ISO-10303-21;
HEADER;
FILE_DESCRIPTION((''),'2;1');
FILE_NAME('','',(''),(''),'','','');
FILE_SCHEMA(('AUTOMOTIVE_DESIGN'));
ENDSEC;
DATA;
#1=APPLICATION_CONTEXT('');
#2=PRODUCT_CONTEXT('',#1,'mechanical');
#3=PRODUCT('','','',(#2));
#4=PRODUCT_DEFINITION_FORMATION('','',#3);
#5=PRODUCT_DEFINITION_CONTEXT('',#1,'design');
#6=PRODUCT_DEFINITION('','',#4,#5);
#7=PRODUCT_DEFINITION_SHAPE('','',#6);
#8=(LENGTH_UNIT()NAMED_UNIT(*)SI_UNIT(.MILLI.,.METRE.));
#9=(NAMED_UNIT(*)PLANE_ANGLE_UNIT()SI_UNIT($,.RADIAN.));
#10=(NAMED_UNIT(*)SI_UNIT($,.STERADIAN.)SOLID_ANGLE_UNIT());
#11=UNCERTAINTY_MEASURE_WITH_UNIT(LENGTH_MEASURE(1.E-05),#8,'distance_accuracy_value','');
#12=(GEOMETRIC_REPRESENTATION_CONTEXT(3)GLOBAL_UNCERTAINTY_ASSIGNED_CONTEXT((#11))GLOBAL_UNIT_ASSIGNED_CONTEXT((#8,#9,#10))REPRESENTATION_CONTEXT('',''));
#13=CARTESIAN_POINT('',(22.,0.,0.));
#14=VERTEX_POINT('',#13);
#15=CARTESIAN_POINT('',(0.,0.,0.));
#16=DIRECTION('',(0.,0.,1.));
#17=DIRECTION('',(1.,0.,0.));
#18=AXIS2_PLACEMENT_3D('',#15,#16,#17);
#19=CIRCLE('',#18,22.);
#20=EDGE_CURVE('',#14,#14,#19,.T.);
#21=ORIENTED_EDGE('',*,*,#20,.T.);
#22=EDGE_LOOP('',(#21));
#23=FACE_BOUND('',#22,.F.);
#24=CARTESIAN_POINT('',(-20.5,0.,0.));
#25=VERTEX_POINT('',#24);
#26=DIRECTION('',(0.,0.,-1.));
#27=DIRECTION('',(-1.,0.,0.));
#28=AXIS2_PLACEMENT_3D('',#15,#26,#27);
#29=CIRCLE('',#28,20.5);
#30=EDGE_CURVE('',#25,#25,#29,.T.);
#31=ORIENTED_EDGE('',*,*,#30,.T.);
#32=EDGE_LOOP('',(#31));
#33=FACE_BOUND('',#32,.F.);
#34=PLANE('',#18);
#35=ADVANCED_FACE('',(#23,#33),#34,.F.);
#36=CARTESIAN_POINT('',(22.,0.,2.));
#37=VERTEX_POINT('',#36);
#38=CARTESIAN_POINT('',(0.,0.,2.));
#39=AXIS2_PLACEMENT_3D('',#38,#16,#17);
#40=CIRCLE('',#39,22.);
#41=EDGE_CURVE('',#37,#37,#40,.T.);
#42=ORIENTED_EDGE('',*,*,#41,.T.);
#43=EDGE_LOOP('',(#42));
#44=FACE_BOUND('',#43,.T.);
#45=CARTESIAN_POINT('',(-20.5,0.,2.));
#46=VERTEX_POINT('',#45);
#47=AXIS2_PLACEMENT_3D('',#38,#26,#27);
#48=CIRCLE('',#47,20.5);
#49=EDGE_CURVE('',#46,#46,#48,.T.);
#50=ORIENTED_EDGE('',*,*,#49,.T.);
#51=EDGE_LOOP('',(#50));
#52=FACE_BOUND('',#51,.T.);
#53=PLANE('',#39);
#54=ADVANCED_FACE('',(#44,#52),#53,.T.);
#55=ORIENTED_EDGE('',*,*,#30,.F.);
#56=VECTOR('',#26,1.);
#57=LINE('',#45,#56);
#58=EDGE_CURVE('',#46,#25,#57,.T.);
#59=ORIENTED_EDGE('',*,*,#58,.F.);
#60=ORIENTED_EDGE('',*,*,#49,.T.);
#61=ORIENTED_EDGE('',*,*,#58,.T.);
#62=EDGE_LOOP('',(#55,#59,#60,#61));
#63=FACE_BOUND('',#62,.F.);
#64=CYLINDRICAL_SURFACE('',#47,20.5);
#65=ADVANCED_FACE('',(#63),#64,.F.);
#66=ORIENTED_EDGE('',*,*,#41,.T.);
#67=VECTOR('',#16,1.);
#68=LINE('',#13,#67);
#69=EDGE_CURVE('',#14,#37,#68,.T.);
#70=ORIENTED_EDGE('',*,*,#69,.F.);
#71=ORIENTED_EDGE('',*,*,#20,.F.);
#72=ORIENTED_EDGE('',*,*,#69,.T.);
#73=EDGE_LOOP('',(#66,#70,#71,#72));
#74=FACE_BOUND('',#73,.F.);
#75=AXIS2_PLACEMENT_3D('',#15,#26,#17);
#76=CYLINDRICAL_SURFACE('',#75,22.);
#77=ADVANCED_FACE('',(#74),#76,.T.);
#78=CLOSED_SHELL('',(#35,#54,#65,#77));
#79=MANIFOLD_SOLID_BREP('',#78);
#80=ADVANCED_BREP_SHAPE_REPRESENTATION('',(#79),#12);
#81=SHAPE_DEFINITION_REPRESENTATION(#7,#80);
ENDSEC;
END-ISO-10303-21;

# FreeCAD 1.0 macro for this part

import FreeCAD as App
import Part
import Sketcher
from FreeCAD import Vector
Q = App.Units.Quantity

doc = App.newDocument("Part")
params = doc.addObject("Spreadsheet::Sheet", "Params")
for row, (alias, value) in enumerate([
    ("sketch1_diameter", "44 mm"),
    ("pad1_length", "2 mm"),
    ("sketch2_diameter", "41 mm"),
    ("hole_diameter", "41 mm"),
    ("hole_depth", "2 mm"),
], start=1):
    params.set(f"A{row}", alias)
    params.set(f"B{row}", "=" + value)
    params.setAlias(f"B{row}", alias)

body = doc.addObject("PartDesign::Body", "Body")

sketch1 = body.newObject("Sketcher::SketchObject", "Sketch")
sketch1.AttachmentSupport = (doc.getObject("XY_Plane"), [""])
sketch1.MapMode = "FlatFace"
sketch1.addGeometry(Part.Circle(Vector(0, 0, 0), Vector(0, 0, 1), 22), False)
sketch1.addConstraint([
    Sketcher.Constraint("Coincident", 0, 3, -1, 1),
    Sketcher.Constraint("Diameter", 0, Q("44 mm")),
])
sketch1.setExpression("Constraints[1]", "Params.sketch1_diameter")
pad1 = body.newObject("PartDesign::Pad", "Pad")
pad1.Profile = sketch1
pad1.setExpression("Length", "Params.pad1_length")

sketch2 = body.newObject("Sketcher::SketchObject", "Sketch001")
sketch2.AttachmentSupport = (doc.getObject("XY_Plane"), [""])
sketch2.MapMode = "FlatFace"
sketch2.addGeometry(Part.Circle(Vector(0, 0, 0), Vector(0, 0, 1), 20), False)
sketch2.addConstraint([
    Sketcher.Constraint("Coincident", 0, 3, -1, 1),
    Sketcher.Constraint("Diameter", 0, Q("41 mm")),
])
sketch2.setExpression("Constraints[1]", "Params.sketch2_diameter")
doc.recompute()
hole = body.newObject("PartDesign::Hole", "Hole")
hole.Profile = sketch2
hole.ThreadType = "None"
hole.setExpression("Diameter", "Params.hole_diameter")
hole.DepthType = "Dimension"
hole.setExpression("Depth", "Params.hole_depth")
hole.DrillPoint = "Flat"
hole.Reversed = True

doc.recompute()
